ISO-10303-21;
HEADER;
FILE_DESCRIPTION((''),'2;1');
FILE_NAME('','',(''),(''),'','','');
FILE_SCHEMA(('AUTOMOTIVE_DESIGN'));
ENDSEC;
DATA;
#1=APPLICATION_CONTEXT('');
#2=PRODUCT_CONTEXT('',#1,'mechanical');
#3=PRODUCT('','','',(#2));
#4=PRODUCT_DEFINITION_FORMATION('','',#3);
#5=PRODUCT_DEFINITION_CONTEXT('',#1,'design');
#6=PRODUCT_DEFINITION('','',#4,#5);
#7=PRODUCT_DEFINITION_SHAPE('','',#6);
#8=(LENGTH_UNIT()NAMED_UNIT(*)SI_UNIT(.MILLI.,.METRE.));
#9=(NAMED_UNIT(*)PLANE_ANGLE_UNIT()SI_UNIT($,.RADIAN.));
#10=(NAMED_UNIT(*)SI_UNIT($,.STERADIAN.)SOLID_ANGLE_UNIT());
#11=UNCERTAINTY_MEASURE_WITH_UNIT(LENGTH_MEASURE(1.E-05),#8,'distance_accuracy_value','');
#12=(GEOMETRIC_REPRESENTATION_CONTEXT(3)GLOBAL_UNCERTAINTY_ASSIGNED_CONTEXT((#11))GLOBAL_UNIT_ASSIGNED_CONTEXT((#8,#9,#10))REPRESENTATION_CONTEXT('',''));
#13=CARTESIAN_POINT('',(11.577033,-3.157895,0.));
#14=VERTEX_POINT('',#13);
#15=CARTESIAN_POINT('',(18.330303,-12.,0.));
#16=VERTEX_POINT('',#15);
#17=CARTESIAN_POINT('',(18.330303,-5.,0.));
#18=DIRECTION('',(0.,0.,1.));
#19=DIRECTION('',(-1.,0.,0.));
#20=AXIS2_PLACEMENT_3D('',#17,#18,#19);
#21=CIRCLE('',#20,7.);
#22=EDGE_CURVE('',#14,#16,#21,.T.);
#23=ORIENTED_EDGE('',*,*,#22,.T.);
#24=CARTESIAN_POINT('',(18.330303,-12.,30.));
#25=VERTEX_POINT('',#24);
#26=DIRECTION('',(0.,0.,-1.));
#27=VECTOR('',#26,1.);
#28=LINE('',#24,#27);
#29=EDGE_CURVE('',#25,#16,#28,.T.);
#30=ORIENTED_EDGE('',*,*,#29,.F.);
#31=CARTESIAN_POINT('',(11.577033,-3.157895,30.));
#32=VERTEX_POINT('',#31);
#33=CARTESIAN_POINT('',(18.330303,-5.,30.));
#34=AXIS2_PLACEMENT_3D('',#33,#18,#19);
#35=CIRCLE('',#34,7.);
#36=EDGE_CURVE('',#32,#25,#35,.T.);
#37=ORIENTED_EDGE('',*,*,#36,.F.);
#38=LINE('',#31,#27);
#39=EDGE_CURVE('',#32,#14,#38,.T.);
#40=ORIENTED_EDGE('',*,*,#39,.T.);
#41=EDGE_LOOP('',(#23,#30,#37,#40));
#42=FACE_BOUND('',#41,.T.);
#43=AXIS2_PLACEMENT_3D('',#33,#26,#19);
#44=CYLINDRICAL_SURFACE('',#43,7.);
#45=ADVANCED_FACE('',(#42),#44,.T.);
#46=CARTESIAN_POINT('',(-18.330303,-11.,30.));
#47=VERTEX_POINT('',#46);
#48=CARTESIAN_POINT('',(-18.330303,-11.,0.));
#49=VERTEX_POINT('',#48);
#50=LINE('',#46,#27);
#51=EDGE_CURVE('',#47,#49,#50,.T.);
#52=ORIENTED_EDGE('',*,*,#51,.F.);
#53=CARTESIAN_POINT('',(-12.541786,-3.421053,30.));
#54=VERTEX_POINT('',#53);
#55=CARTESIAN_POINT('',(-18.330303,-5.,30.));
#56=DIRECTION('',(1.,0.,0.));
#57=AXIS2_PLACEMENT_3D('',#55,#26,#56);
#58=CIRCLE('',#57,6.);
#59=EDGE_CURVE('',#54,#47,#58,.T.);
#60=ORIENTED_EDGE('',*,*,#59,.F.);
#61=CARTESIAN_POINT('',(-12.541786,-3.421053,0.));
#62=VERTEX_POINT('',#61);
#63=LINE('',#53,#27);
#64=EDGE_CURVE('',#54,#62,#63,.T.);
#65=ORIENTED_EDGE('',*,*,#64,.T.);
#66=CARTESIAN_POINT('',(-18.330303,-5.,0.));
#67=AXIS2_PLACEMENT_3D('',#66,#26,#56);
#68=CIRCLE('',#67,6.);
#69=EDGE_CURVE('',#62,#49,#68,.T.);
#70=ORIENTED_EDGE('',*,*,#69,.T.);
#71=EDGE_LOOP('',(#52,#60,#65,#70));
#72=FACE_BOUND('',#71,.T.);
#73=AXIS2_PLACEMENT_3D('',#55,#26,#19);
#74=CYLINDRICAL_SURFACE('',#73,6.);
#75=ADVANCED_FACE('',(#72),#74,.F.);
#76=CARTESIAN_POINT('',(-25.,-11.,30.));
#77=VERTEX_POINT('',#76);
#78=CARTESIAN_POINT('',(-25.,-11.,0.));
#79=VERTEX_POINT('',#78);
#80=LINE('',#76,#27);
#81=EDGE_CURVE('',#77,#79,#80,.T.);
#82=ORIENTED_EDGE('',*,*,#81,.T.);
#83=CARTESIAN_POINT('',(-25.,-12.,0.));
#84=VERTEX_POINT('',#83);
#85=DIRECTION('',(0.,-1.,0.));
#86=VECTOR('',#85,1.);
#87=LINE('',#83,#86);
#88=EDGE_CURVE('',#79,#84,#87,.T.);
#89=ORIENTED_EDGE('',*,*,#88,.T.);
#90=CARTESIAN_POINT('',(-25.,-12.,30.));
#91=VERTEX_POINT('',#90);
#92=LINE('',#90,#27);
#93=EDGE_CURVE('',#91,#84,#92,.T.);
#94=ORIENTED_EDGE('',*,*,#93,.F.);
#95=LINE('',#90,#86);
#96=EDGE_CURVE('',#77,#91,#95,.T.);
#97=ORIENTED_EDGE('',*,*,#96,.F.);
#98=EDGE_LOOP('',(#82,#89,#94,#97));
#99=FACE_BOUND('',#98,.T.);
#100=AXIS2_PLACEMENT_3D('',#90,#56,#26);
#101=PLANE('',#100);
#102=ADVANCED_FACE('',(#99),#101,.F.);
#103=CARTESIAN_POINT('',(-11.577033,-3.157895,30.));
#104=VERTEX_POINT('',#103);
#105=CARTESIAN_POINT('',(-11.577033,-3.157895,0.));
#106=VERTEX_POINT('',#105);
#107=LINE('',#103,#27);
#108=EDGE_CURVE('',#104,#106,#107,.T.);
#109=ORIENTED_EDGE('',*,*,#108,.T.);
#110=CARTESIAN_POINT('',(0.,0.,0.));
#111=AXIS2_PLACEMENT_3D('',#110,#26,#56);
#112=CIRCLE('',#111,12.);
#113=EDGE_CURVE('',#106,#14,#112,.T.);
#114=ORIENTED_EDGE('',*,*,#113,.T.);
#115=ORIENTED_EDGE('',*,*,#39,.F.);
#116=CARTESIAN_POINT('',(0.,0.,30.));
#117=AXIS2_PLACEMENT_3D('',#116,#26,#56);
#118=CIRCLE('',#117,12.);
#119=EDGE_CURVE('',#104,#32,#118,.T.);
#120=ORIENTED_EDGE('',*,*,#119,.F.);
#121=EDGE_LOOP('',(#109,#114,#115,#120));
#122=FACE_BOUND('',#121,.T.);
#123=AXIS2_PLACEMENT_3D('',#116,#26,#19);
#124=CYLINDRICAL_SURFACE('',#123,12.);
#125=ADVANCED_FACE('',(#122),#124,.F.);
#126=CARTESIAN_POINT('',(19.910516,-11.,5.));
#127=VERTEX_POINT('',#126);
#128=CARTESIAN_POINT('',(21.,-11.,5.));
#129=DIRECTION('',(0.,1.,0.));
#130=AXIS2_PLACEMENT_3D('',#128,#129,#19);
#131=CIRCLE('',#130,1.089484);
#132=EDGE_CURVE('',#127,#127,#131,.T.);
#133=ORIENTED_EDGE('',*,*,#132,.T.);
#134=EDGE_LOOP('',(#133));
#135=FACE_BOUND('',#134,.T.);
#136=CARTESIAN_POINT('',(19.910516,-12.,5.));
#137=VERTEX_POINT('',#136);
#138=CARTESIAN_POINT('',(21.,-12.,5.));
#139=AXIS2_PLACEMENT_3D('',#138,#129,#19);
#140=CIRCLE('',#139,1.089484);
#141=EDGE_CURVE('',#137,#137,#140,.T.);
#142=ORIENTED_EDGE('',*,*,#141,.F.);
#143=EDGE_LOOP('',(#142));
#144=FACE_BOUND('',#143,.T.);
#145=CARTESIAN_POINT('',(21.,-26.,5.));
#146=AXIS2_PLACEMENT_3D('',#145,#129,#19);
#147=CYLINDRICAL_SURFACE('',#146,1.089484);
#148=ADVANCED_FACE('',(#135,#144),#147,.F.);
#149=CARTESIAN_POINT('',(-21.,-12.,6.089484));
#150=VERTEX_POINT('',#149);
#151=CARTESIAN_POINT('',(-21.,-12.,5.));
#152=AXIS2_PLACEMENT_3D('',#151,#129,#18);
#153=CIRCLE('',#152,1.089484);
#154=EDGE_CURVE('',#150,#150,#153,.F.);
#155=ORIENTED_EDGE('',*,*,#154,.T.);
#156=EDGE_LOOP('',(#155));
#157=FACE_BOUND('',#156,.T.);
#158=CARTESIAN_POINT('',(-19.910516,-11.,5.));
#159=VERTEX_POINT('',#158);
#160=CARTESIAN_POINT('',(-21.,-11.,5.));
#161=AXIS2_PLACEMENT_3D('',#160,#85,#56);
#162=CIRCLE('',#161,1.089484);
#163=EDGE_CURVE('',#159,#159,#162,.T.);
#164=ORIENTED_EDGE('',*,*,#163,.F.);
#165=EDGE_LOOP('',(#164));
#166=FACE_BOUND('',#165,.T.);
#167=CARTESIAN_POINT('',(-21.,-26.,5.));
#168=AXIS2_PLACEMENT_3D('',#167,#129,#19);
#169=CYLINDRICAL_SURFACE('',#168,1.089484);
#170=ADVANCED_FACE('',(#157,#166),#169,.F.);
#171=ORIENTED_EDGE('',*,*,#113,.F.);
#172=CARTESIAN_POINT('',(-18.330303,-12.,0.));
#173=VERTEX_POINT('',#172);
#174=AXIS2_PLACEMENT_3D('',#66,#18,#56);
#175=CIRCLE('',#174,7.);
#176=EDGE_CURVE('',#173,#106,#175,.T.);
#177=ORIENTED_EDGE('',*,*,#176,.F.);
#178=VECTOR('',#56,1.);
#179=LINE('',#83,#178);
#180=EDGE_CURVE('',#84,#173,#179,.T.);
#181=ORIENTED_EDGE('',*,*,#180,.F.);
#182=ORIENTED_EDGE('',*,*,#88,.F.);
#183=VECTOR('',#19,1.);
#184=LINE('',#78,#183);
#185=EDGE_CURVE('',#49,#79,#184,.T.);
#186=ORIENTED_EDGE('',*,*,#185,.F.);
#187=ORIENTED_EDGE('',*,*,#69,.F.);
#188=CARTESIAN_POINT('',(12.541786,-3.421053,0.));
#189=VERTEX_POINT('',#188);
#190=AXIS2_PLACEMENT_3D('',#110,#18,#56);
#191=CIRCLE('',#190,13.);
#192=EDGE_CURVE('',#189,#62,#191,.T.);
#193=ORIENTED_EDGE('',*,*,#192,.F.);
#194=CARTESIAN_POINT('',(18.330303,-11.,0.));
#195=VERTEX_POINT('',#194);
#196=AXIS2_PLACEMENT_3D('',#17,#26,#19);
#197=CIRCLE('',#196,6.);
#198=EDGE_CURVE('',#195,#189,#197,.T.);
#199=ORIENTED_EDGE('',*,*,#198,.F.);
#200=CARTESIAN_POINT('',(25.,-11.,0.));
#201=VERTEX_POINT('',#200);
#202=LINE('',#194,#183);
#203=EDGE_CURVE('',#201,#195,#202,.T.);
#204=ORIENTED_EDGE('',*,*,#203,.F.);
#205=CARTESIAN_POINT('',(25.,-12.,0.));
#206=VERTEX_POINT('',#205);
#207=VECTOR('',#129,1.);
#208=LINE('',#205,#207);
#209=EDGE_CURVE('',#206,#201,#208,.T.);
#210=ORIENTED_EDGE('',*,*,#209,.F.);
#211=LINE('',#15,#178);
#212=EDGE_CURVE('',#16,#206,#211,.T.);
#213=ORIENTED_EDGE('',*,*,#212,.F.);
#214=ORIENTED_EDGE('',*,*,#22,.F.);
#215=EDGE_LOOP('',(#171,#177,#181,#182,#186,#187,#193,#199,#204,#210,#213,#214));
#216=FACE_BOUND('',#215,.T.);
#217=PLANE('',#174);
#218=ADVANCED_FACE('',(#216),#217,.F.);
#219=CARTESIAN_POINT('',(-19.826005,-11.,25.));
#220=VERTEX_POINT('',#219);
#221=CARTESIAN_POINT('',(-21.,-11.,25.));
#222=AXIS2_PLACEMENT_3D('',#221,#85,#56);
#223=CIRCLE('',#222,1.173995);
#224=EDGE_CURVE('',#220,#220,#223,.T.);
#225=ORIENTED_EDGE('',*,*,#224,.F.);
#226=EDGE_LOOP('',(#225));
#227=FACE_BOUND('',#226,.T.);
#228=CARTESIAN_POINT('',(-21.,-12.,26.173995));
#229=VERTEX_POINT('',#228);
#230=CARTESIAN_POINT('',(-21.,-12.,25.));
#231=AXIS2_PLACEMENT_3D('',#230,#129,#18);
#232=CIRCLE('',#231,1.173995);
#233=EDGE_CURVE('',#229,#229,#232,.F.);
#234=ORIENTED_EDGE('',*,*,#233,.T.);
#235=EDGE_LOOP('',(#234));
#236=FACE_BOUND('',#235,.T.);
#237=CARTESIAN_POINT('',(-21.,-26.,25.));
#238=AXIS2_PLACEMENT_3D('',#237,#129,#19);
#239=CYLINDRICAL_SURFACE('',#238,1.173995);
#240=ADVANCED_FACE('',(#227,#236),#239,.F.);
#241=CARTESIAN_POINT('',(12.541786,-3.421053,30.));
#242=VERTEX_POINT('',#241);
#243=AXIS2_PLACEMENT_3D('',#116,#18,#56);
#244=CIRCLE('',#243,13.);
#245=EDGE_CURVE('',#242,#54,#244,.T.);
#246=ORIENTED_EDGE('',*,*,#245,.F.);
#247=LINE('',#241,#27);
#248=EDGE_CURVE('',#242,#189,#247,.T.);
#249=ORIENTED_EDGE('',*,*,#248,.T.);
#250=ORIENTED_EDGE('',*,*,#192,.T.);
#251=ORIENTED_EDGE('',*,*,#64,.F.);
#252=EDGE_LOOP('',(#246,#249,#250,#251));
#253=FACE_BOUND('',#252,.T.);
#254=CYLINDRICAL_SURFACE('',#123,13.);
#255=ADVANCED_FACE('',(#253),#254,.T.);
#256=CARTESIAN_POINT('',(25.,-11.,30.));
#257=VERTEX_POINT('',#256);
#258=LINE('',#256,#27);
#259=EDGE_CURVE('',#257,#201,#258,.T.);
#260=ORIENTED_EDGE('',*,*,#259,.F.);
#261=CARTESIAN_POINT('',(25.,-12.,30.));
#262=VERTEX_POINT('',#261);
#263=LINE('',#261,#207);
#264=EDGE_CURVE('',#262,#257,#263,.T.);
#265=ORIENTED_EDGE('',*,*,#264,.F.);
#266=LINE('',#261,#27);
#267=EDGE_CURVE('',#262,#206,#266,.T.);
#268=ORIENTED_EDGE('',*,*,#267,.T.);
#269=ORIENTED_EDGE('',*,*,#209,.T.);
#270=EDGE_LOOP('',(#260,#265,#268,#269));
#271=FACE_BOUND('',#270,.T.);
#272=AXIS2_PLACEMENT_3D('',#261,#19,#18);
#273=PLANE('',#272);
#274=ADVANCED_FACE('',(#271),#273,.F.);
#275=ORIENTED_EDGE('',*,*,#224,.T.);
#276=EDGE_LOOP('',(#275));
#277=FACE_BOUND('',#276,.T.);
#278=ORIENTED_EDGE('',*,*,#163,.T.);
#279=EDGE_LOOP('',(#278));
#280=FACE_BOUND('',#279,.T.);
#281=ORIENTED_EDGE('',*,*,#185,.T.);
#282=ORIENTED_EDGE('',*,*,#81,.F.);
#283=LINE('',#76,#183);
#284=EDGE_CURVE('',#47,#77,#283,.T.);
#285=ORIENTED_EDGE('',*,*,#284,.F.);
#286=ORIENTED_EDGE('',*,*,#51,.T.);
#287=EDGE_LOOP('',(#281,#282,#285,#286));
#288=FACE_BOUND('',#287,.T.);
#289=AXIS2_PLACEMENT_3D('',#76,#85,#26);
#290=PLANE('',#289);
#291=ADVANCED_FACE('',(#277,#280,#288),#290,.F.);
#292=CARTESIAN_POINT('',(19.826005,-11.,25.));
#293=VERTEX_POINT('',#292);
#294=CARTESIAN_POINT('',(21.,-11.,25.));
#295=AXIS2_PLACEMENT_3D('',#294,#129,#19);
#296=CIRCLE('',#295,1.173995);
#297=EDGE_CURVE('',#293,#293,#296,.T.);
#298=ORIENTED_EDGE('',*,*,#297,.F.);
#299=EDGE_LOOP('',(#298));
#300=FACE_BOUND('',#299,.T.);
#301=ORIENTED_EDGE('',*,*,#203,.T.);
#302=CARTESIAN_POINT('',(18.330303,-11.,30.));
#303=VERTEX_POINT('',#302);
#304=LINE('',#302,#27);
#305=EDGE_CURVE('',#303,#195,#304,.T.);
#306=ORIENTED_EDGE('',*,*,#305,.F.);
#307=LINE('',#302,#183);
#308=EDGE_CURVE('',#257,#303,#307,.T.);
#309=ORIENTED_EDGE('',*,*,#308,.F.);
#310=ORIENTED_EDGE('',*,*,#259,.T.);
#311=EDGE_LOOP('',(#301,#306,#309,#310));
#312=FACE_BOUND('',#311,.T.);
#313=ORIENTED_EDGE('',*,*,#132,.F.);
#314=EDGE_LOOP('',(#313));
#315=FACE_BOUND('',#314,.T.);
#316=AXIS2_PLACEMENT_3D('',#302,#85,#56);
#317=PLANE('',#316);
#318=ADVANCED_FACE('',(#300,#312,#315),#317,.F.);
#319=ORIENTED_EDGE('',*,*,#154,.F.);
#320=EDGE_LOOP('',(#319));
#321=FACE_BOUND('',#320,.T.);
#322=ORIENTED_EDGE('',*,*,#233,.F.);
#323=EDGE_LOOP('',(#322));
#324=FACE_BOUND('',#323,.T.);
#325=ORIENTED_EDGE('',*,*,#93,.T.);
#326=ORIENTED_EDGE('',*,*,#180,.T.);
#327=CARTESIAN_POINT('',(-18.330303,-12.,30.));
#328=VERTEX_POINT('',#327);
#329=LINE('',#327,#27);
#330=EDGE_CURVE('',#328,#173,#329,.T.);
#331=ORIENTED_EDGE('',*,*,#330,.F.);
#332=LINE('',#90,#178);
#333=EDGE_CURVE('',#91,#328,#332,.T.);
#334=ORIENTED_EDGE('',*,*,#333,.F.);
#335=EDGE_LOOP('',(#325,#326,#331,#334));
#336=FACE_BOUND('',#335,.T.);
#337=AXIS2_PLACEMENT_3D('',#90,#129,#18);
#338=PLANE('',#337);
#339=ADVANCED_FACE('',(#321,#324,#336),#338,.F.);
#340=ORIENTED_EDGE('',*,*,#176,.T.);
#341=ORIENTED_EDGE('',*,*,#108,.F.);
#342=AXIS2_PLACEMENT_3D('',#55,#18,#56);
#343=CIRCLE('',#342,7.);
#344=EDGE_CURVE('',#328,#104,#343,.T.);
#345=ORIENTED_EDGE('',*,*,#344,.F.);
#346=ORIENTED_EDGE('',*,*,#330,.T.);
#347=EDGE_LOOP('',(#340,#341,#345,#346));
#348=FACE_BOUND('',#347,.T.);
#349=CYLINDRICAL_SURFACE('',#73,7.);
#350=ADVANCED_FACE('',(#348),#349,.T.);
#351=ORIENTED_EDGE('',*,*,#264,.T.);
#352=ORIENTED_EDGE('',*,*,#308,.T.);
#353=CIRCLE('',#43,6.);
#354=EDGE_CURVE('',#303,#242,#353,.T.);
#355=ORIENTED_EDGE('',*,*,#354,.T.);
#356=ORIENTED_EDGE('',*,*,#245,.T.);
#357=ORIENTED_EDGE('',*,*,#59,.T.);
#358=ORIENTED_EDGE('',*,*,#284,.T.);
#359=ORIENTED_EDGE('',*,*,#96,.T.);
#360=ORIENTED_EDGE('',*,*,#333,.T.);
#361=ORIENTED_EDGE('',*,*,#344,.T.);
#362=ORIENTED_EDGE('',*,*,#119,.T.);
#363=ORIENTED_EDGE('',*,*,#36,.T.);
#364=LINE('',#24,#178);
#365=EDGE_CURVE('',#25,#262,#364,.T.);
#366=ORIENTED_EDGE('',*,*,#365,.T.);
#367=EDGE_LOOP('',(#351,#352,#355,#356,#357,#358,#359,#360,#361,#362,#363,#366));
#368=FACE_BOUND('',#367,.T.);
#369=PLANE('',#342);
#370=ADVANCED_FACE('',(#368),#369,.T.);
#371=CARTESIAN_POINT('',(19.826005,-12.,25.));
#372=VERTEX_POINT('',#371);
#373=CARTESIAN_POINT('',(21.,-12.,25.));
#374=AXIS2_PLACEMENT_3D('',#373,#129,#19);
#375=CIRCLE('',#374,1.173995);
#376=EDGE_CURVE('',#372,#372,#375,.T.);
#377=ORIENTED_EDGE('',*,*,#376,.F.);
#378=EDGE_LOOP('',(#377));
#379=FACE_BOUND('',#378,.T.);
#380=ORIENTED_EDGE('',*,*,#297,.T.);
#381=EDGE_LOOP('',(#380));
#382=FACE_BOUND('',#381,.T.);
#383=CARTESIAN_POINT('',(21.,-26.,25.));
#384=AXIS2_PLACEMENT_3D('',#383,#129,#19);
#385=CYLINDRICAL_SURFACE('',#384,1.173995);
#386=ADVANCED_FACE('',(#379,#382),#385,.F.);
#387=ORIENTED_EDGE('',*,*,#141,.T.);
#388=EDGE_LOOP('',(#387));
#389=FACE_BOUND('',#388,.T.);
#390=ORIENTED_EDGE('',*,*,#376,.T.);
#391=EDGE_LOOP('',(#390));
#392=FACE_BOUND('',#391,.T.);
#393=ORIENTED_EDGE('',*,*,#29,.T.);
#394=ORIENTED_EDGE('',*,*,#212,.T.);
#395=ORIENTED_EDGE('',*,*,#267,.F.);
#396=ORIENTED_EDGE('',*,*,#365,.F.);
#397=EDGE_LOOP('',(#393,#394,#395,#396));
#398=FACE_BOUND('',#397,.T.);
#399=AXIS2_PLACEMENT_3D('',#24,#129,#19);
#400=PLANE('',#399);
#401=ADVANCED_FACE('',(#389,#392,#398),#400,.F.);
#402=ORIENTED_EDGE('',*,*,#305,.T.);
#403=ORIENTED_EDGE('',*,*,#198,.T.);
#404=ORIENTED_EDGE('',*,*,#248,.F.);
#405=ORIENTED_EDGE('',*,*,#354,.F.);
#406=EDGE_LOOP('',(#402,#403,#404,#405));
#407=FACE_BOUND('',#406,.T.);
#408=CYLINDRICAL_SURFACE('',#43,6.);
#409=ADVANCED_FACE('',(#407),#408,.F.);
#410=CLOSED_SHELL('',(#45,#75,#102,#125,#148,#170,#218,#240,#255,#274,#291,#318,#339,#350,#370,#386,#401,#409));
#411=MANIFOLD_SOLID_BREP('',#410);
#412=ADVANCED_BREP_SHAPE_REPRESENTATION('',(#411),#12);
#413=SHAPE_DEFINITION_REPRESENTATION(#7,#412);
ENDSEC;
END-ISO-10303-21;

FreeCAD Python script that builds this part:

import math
import FreeCAD as App
import Part
import Sketcher
from FreeCAD import Vector
Q = App.Units.Quantity

doc = App.newDocument("Part")
params = doc.addObject("Spreadsheet::Sheet", "Params")
for row, (alias, value) in enumerate([
    ("sketch1_radius", "7 mm"),
    ("sketch1_radius2", "12 mm"),
    ("sketch1_radius3", "6 mm"),
    ("pad1_length", "30 mm"),
    ("pocket1_length", "15 mm"),
], start=1):
    params.set(f"A{row}", alias)
    params.set(f"B{row}", "=" + value)
    params.setAlias(f"B{row}", alias)

body = doc.addObject("PartDesign::Body", "Body")

sketch1 = body.newObject("Sketcher::SketchObject", "Sketch")
sketch1.AttachmentSupport = (doc.getObject("XY_Plane"), [""])
sketch1.MapMode = "FlatFace"
sketch1.addGeometry([
    Part.LineSegment(Vector(-25, -12, 0), Vector(-18.3, -12, 0)),
    Part.ArcOfCircle(Part.Circle(Vector(-18.3, -5, 0), Vector(0, 0, 1), 7), math.radians(-90), math.radians(15)),
    Part.ArcOfCircle(Part.Circle(Vector(0, 0, 0), Vector(0, 0, 1), 12), math.radians(-15), math.radians(195)),
    Part.ArcOfCircle(Part.Circle(Vector(18.3, -5, 0), Vector(0, 0, 1), 7), math.radians(165), math.radians(270)),
    Part.LineSegment(Vector(18.3, -12, 0), Vector(25, -12, 0)),
    Part.LineSegment(Vector(25, -12, 0), Vector(25, -11, 0)),
    Part.LineSegment(Vector(25, -11, 0), Vector(18.3, -11, 0)),
    Part.ArcOfCircle(Part.Circle(Vector(18.3, -5, 0), Vector(0, 0, 1), 6), math.radians(165), math.radians(270)),
    Part.ArcOfCircle(Part.Circle(Vector(0, 0, 0), Vector(0, 0, 1), 13), math.radians(-15), math.radians(195)),
    Part.ArcOfCircle(Part.Circle(Vector(-18.3, -5, 0), Vector(0, 0, 1), 6), math.radians(-90), math.radians(15)),
    Part.LineSegment(Vector(-18.3, -11, 0), Vector(-25, -11, 0)),
    Part.LineSegment(Vector(-25, -11, 0), Vector(-25, -12, 0)),
], False)
sketch1.addConstraint([
    Sketcher.Constraint("Tangent", 0, 2, 1, 1),
    Sketcher.Constraint("Tangent", 1, 2, 2, 2),
    Sketcher.Constraint("Tangent", 2, 1, 3, 1),
    Sketcher.Constraint("Tangent", 3, 2, 4, 1),
    Sketcher.Constraint("Coincident", 4, 2, 5, 1),
    Sketcher.Constraint("Coincident", 5, 2, 6, 1),
    Sketcher.Constraint("Tangent", 6, 2, 7, 2),
    Sketcher.Constraint("Tangent", 7, 1, 8, 1),
    Sketcher.Constraint("Tangent", 8, 2, 9, 2),
    Sketcher.Constraint("Tangent", 9, 1, 10, 1),
    Sketcher.Constraint("Coincident", 10, 2, 11, 1),
    Sketcher.Constraint("Coincident", 11, 2, 0, 1),
    Sketcher.Constraint("Horizontal", 0),
    Sketcher.Constraint("Horizontal", 4),
    Sketcher.Constraint("Vertical", 5),
    Sketcher.Constraint("Horizontal", 6),
    Sketcher.Constraint("Horizontal", 10),
    Sketcher.Constraint("Vertical", 11),
    Sketcher.Constraint("Coincident", 2, 3, -1, 1),
    Sketcher.Constraint("Coincident", 8, 3, -1, 1),
    Sketcher.Constraint("Coincident", 7, 3, 3, 3),
    Sketcher.Constraint("Coincident", 9, 3, 1, 3),
    Sketcher.Constraint("Equal", 1, 3),
    Sketcher.Constraint("Symmetric", 5, 2, 10, 2, -2),
    Sketcher.Constraint("Radius", 1, Q("7 mm")),
    Sketcher.Constraint("Radius", 2, Q("12 mm")),
    Sketcher.Constraint("Radius", 7, Q("6 mm")),
    Sketcher.Constraint("DistanceY", 1, 3, -1, 1, Q("5 mm")),
    Sketcher.Constraint("DistanceX", -1, 1, 4, 2, Q("25 mm")),
])
sketch1.setExpression("Constraints[24]", "Params.sketch1_radius")
sketch1.setExpression("Constraints[25]", "Params.sketch1_radius2")
sketch1.setExpression("Constraints[26]", "Params.sketch1_radius3")
pad1 = body.newObject("PartDesign::Pad", "Pad")
pad1.Profile = sketch1
pad1.setExpression("Length", "Params.pad1_length")

sketch2 = body.newObject("Sketcher::SketchObject", "Sketch001")
sketch2.AttachmentSupport = (doc.getObject("XZ_Plane"), [""])
sketch2.MapMode = "FlatFace"
sketch2.AttachmentOffset = App.Placement(Vector(0, 0, 11), App.Rotation())
sketch2.addGeometry([
    Part.Circle(Vector(21, 5, 0), Vector(0, 0, 1), 1.1),
    Part.Circle(Vector(21, 25, 0), Vector(0, 0, 1), 1.2),
], False)
sketch2.addConstraint([
    Sketcher.Constraint("Vertical", 0, 3, 1, 3),
    Sketcher.Constraint("DistanceX", -1, 1, 0, 3, Q("21 mm")),
    Sketcher.Constraint("DistanceY", -1, 1, 0, 3, Q("5 mm")),
    Sketcher.Constraint("DistanceY", -1, 1, 1, 3, Q("25 mm")),
    Sketcher.Constraint("Diameter", 1, Q("2.34799 mm")),
    Sketcher.Constraint("Diameter", 0, Q("2.178967 mm")),
])
pocket1 = body.newObject("PartDesign::Pocket", "Pocket")
pocket1.Profile = sketch2
pocket1.setExpression("Length", "Params.pocket1_length")
pocket1.Reversed = True
doc.recompute()

mirrored = body.newObject("PartDesign::Mirrored", "Mirrored")
mirrored.Originals = [pocket1]
mirrored.MirrorPlane = (doc.getObject("YZ_Plane"), [""])
body.Tip = mirrored

doc.recompute()
